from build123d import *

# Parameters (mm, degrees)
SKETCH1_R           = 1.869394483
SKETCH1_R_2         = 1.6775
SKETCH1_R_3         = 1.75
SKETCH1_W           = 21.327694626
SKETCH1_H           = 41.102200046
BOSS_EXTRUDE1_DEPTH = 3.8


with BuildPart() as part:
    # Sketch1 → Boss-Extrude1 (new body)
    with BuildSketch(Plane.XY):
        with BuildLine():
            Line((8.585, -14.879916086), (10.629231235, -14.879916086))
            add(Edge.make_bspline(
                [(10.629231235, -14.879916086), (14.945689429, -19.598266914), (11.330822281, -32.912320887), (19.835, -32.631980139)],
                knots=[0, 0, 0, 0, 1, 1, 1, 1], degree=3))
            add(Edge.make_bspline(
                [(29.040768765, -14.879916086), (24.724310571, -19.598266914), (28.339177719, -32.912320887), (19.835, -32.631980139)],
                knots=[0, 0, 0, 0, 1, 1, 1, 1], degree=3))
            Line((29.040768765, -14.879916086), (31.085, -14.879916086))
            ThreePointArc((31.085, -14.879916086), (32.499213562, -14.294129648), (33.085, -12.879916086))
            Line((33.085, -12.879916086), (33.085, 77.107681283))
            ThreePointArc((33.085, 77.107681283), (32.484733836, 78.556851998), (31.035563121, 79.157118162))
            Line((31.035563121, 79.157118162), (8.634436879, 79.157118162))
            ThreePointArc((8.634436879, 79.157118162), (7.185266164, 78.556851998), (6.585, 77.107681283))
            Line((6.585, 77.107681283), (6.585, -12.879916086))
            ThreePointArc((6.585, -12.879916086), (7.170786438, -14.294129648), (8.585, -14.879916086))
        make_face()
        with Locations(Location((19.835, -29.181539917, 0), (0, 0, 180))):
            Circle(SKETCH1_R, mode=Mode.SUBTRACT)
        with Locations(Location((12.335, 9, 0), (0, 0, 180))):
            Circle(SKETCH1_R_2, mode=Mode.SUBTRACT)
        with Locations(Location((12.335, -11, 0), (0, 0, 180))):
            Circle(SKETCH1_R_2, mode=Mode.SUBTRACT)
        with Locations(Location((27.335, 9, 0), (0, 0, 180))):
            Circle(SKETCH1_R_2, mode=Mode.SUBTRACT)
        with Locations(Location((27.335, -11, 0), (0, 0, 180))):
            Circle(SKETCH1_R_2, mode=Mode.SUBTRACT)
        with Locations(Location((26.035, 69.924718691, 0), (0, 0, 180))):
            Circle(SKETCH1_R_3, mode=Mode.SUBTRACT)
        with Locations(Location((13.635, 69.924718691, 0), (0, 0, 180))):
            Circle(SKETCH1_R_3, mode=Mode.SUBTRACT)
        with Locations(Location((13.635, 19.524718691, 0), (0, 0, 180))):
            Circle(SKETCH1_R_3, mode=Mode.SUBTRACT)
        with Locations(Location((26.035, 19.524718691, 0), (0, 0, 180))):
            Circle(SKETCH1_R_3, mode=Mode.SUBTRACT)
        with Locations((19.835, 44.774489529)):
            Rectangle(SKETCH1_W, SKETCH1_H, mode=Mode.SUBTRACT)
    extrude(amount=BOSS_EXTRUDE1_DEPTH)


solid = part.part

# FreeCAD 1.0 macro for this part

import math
import FreeCAD as App
import Part
import Sketcher
Q = App.Units.Quantity

doc = App.newDocument("Part")
body = doc.addObject("PartDesign::Body", "Body")

# Sketch on XY plane
sketch1 = body.newObject("Sketcher::SketchObject", "Sketch")
sketch1.AttachmentSupport = (doc.getObject("XY_Plane"), [""])
sketch1.MapMode = "FlatFace"
sketch1.addGeometry(Part.LineSegment(App.Vector(8.585, -14.879916, 0), App.Vector(10.629231, -14.879916, 0)), False)
sketch1.addGeometry(Part.BSplineCurve([App.Vector(10.629231, -14.879916, 0), App.Vector(14.945689, -19.598267, 0), App.Vector(11.330822, -32.912321, 0), App.Vector(19.835, -32.63198, 0)], [4, 4], [0, 1], False, 3, [1, 1, 1, 1], False), False)
sketch1.addGeometry(Part.BSplineCurve([App.Vector(29.040769, -14.879916, 0), App.Vector(24.724311, -19.598267, 0), App.Vector(28.339178, -32.912321, 0), App.Vector(19.835, -32.63198, 0)], [4, 4], [0, 1], False, 3, [1, 1, 1, 1], False), False)
sketch1.addGeometry(Part.LineSegment(App.Vector(29.040769, -14.879916, 0), App.Vector(31.085, -14.879916, 0)), False)
sketch1.addGeometry(Part.ArcOfCircle(Part.Circle(App.Vector(31.085, -12.879916, 0), App.Vector(0, 0, 1), 2), math.radians(-90), math.radians(0)), False)
sketch1.addGeometry(Part.LineSegment(App.Vector(33.085, -12.879916, 0), App.Vector(33.085, 77.107681, 0)), False)
sketch1.addGeometry(Part.ArcOfCircle(Part.Circle(App.Vector(31.035563, 77.107681, 0), App.Vector(0, 0, 1), 2.049437), math.radians(0), math.radians(90)), False)
sketch1.addGeometry(Part.LineSegment(App.Vector(31.035563, 79.157118, 0), App.Vector(8.634437, 79.157118, 0)), False)
sketch1.addGeometry(Part.ArcOfCircle(Part.Circle(App.Vector(8.634437, 77.107681, 0), App.Vector(0, 0, 1), 2.049437), math.radians(90), math.radians(180)), False)
sketch1.addGeometry(Part.LineSegment(App.Vector(6.585, 77.107681, 0), App.Vector(6.585, -12.879916, 0)), False)
sketch1.addGeometry(Part.ArcOfCircle(Part.Circle(App.Vector(8.585, -12.879916, 0), App.Vector(0, 0, 1), 2), math.radians(-180), math.radians(-90)), False)
sketch1.addGeometry(Part.Circle(App.Vector(12.335, -11, 0), App.Vector(0, 0, 1), 1.6775), False)
sketch1.addGeometry(Part.Circle(App.Vector(12.335, 9, 0), App.Vector(0, 0, 1), 1.6775), False)
sketch1.addGeometry(Part.Circle(App.Vector(13.635, 19.524719, 0), App.Vector(0, 0, 1), 1.75), False)
sketch1.addGeometry(Part.Circle(App.Vector(19.835, -29.18154, 0), App.Vector(0, 0, 1), 1.869394), False)
sketch1.addGeometry(Part.Circle(App.Vector(27.335, -11, 0), App.Vector(0, 0, 1), 1.6775), False)
sketch1.addGeometry(Part.Circle(App.Vector(27.335, 9, 0), App.Vector(0, 0, 1), 1.6775), False)
sketch1.addGeometry(Part.Circle(App.Vector(26.035, 19.524719, 0), App.Vector(0, 0, 1), 1.75), False)
sketch1.addGeometry(Part.Circle(App.Vector(13.635, 69.924719, 0), App.Vector(0, 0, 1), 1.75), False)
sketch1.addGeometry(Part.LineSegment(App.Vector(30.498847, 24.22339, 0), App.Vector(9.171153, 24.22339, 0)), False)
sketch1.addGeometry(Part.LineSegment(App.Vector(9.171153, 24.22339, 0), App.Vector(9.171153, 65.32559, 0)), False)
sketch1.addGeometry(Part.LineSegment(App.Vector(9.171153, 65.32559, 0), App.Vector(30.498847, 65.32559, 0)), False)
sketch1.addGeometry(Part.LineSegment(App.Vector(30.498847, 65.32559, 0), App.Vector(30.498847, 24.22339, 0)), False)
sketch1.addGeometry(Part.Circle(App.Vector(26.035, 69.924719, 0), App.Vector(0, 0, 1), 1.75), False)
sketch1.addConstraint(Sketcher.Constraint("Block", 1))
sketch1.addConstraint(Sketcher.Constraint("Block", 2))
sketch1.addConstraint(Sketcher.Constraint("Coincident", 0, 2, 1, 1))
sketch1.addConstraint(Sketcher.Constraint("Coincident", 2, 1, 3, 1))
sketch1.addConstraint(Sketcher.Constraint("Tangent", 3, 2, 4, 1))
sketch1.addConstraint(Sketcher.Constraint("Tangent", 4, 2, 5, 1))
sketch1.addConstraint(Sketcher.Constraint("Tangent", 5, 2, 6, 1))
sketch1.addConstraint(Sketcher.Constraint("Tangent", 6, 2, 7, 1))
sketch1.addConstraint(Sketcher.Constraint("Tangent", 7, 2, 8, 1))
sketch1.addConstraint(Sketcher.Constraint("Tangent", 8, 2, 9, 1))
sketch1.addConstraint(Sketcher.Constraint("Tangent", 9, 2, 10, 1))
sketch1.addConstraint(Sketcher.Constraint("Tangent", 10, 2, 0, 1))
sketch1.addConstraint(Sketcher.Constraint("Coincident", 19, 2, 20, 1))
sketch1.addConstraint(Sketcher.Constraint("Coincident", 20, 2, 21, 1))
sketch1.addConstraint(Sketcher.Constraint("Coincident", 21, 2, 22, 1))
sketch1.addConstraint(Sketcher.Constraint("Coincident", 22, 2, 19, 1))
sketch1.addConstraint(Sketcher.Constraint("Horizontal", 0))
sketch1.addConstraint(Sketcher.Constraint("Horizontal", 3))
sketch1.addConstraint(Sketcher.Constraint("Vertical", 5))
sketch1.addConstraint(Sketcher.Constraint("Horizontal", 7))
sketch1.addConstraint(Sketcher.Constraint("Vertical", 9))
sketch1.addConstraint(Sketcher.Constraint("Horizontal", 19))
sketch1.addConstraint(Sketcher.Constraint("Vertical", 20))
sketch1.addConstraint(Sketcher.Constraint("Horizontal", 21))
sketch1.addConstraint(Sketcher.Constraint("Vertical", 22))
sketch1.addConstraint(Sketcher.Constraint("Equal", 6, 8))
sketch1.addConstraint(Sketcher.Constraint("Equal", 4, 10))
sketch1.addConstraint(Sketcher.Constraint("Equal", 11, 12))
sketch1.addConstraint(Sketcher.Constraint("Equal", 12, 15))
sketch1.addConstraint(Sketcher.Constraint("Equal", 15, 16))
sketch1.addConstraint(Sketcher.Constraint("Equal", 13, 17))
sketch1.addConstraint(Sketcher.Constraint("Equal", 17, 18))
sketch1.addConstraint(Sketcher.Constraint("Equal", 18, 23))
sketch1.addConstraint(Sketcher.Constraint("Horizontal", 11, 3, 15, 3))
sketch1.addConstraint(Sketcher.Constraint("Horizontal", 12, 3, 16, 3))
sketch1.addConstraint(Sketcher.Constraint("Horizontal", 13, 3, 17, 3))
sketch1.addConstraint(Sketcher.Constraint("Horizontal", 18, 3, 23, 3))
sketch1.addConstraint(Sketcher.Constraint("Vertical", 11, 3, 12, 3))
sketch1.addConstraint(Sketcher.Constraint("Vertical", 15, 3, 16, 3))
sketch1.addConstraint(Sketcher.Constraint("Vertical", 13, 3, 18, 3))
sketch1.addConstraint(Sketcher.Constraint("Vertical", 17, 3, 23, 3))
sketch1.addConstraint(Sketcher.Constraint("Equal", 0, 3))
sketch1.addConstraint(Sketcher.Constraint("Radius", 4, Q("2 mm")))
sketch1.addConstraint(Sketcher.Constraint("Diameter", 13, Q("3.5 mm")))
sketch1.addConstraint(Sketcher.Constraint("Diameter", 11, Q("3.355 mm")))
sketch1.addConstraint(Sketcher.Constraint("DistanceY", 11, 3, -1, 1, Q("11 mm")))
sketch1.addConstraint(Sketcher.Constraint("DistanceY", -1, 1, 12, 3, Q("9 mm")))
sketch1.addConstraint(Sketcher.Constraint("DistanceX", 11, 3, 15, 3, Q("15 mm")))
sketch1.addConstraint(Sketcher.Constraint("DistanceX", 10, 3, 4, 3, Q("22.5 mm")))
sketch1.addConstraint(Sketcher.Constraint("DistanceX", 12, 3, 13, 3, Q("1.3 mm")))
sketch1.addConstraint(Sketcher.Constraint("DistanceX", 11, 3, 14, 3, Q("7.5 mm")))
sketch1.addConstraint(Sketcher.Constraint("DistanceX", 17, 3, 16, 3, Q("1.3 mm")))
sketch1.addConstraint(Sketcher.Constraint("DistanceY", 13, 3, 18, 3, Q("50.4 mm")))
sketch1.addConstraint(Sketcher.Constraint("Diameter", 14, Q("3.738789 mm")))
sketch1.addConstraint(Sketcher.Constraint("DistanceX", 10, 3, 11, 3, Q("3.75 mm")))
sketch1.addConstraint(Sketcher.Constraint("DistanceY", 20, 1, 20, 2, Q("41.1022 mm")))
sketch1.addConstraint(Sketcher.Constraint("Radius", 6, Q("2.049437 mm")))
sketch1.addConstraint(Sketcher.Constraint("DistanceY", 23, 3, 6, 2, Q("9.232399 mm")))
sketch1.addConstraint(Sketcher.Constraint("DistanceX", 19, 2, 19, 1, Q("21.327695 mm")))
sketch1.addConstraint(Sketcher.Constraint("DistanceY", 5, 1, 5, 2, Q("89.987597 mm")))
sketch1.addConstraint(Sketcher.Constraint("DistanceY", 14, 3, -1, 1, Q("29.18154 mm")))
sketch1.addConstraint(Sketcher.Constraint("DistanceY", -1, 1, 19, 2, Q("24.22339 mm")))
sketch1.addConstraint(Sketcher.Constraint("DistanceX", -1, 1, 19, 2, Q("9.171153 mm")))
pad1 = body.newObject("PartDesign::Pad", "Pad")
pad1.Profile = sketch1
pad1.Length = 3.8

doc.recompute()
